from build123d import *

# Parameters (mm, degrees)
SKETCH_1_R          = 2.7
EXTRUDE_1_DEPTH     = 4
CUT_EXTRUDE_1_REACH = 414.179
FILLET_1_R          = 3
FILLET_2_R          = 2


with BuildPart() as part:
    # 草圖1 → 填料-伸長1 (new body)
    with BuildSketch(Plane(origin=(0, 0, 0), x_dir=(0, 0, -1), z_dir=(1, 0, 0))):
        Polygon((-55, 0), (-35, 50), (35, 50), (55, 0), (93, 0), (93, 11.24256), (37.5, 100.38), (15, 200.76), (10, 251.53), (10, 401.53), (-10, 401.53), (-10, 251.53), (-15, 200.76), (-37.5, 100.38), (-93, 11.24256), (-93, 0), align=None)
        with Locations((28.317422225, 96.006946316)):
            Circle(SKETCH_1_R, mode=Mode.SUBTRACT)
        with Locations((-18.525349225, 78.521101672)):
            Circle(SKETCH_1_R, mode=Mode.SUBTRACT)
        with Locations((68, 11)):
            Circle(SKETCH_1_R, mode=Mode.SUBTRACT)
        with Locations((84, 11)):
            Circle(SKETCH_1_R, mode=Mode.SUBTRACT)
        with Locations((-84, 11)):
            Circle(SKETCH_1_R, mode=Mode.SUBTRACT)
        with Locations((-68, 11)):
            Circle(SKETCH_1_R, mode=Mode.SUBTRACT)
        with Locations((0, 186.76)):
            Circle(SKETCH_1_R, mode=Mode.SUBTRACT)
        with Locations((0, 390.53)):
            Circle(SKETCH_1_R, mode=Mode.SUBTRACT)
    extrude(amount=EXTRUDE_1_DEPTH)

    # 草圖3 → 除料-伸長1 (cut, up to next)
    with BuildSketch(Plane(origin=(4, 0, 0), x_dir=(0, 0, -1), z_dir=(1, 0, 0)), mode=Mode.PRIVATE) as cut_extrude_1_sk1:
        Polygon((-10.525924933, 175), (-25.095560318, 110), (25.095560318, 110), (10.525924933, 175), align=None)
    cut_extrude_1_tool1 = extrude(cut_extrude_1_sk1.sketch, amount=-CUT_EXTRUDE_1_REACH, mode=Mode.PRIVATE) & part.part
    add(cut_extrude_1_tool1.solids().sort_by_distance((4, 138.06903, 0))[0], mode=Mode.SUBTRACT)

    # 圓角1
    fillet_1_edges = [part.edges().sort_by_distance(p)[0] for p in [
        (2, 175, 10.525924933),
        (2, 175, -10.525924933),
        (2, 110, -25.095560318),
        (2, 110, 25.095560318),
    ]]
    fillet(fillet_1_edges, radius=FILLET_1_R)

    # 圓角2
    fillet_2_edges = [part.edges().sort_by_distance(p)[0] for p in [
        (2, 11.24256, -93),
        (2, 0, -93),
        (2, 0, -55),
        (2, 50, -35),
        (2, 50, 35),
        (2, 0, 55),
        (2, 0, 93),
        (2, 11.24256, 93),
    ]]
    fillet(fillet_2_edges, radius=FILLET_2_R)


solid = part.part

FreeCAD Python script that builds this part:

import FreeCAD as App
import Part
import Sketcher
Q = App.Units.Quantity


def edges_at(feature, points):
    """Names of the edges that pass closest to the given points."""
    edges = feature.Shape.Edges
    near = lambda p: min(range(len(edges)), key=lambda i: edges[i].distToShape(Part.Vertex(*p))[0])
    return sorted({f"Edge{near(p) + 1}" for p in points})


def add_polygon(sketch, points):
    """Adds a closed chain of lines whose ends are joined by coincident constraints."""
    first, n = sketch.GeometryCount, len(points)
    for a, b in zip(points, points[1:] + points[:1]):
        sketch.addGeometry(Part.LineSegment(App.Vector(*a, 0), App.Vector(*b, 0)), False)
    for i in range(n):
        sketch.addConstraint(Sketcher.Constraint("Coincident", first + i, 2, first + (i + 1) % n, 1))

doc = App.newDocument("Part")
body = doc.addObject("PartDesign::Body", "Body")

sketch1 = doc.addObject("Sketcher::SketchObject", "Sketch")
body.addObject(sketch1)
sketch1.AttachmentSupport = (doc.YZ_Plane, [""])
sketch1.MapMode = "FlatFace"
add_polygon(sketch1, [(0, 55), (50, 35), (50, -35), (0, -55), (0, -93), (11.24256, -93), (100.38, -37.5), (200.76, -15), (251.53, -10), (401.53, -10), (401.53, 10), (251.53, 10), (200.76, 15), (100.38, 37.5), (11.24256, 93), (0, 93)])
sketch1.addGeometry(Part.Circle(App.Vector(11, 84, 0), App.Vector(0, 0, 1), 2.7), False)
sketch1.addGeometry(Part.Circle(App.Vector(11, 68, 0), App.Vector(0, 0, 1), 2.7), False)
sketch1.addGeometry(Part.Circle(App.Vector(78.521102, 18.525349, 0), App.Vector(0, 0, 1), 2.7), False)
sketch1.addGeometry(Part.Circle(App.Vector(96.006946, -28.317422, 0), App.Vector(0, 0, 1), 2.7), False)
sketch1.addGeometry(Part.Circle(App.Vector(11, -68, 0), App.Vector(0, 0, 1), 2.7), False)
sketch1.addGeometry(Part.Circle(App.Vector(11, -84, 0), App.Vector(0, 0, 1), 2.7), False)
sketch1.addGeometry(Part.Circle(App.Vector(186.76, 0, 0), App.Vector(0, 0, 1), 2.7), False)
sketch1.addGeometry(Part.Circle(App.Vector(390.53, 0, 0), App.Vector(0, 0, 1), 2.7), False)
sketch1.addConstraint(Sketcher.Constraint("Vertical", 1))
sketch1.addConstraint(Sketcher.Constraint("Vertical", 3))
sketch1.addConstraint(Sketcher.Constraint("Horizontal", 4))
sketch1.addConstraint(Sketcher.Constraint("Horizontal", 8))
sketch1.addConstraint(Sketcher.Constraint("Vertical", 9))
sketch1.addConstraint(Sketcher.Constraint("Horizontal", 10))
sketch1.addConstraint(Sketcher.Constraint("Horizontal", 14))
sketch1.addConstraint(Sketcher.Constraint("Vertical", 15))
sketch1.addConstraint(Sketcher.Constraint("Equal", 16, 17))
sketch1.addConstraint(Sketcher.Constraint("Equal", 17, 18))
sketch1.addConstraint(Sketcher.Constraint("Equal", 18, 19))
sketch1.addConstraint(Sketcher.Constraint("Equal", 19, 20))
sketch1.addConstraint(Sketcher.Constraint("Equal", 20, 21))
sketch1.addConstraint(Sketcher.Constraint("Equal", 21, 22))
sketch1.addConstraint(Sketcher.Constraint("Equal", 22, 23))
sketch1.addConstraint(Sketcher.Constraint("Symmetric", 3, 2, 14, 2, -1, 1))
sketch1.addConstraint(Sketcher.Constraint("Symmetric", 17, 3, 20, 3, -1))
sketch1.addConstraint(Sketcher.Constraint("Symmetric", 16, 3, 21, 3, -1))
sketch1.addConstraint(Sketcher.Constraint("Symmetric", 7, 2, 10, 2, -1))
sketch1.addConstraint(Sketcher.Constraint("Symmetric", 6, 2, 11, 2, -1))
sketch1.addConstraint(Sketcher.Constraint("Symmetric", 5, 2, 12, 2, -1))
sketch1.addConstraint(Sketcher.Constraint("Symmetric", 2, 2, 15, 2, -1))
sketch1.addConstraint(Sketcher.Constraint("PointOnObject", 22, 3, -1))
sketch1.addConstraint(Sketcher.Constraint("PointOnObject", 23, 3, -1))
sketch1.addConstraint(Sketcher.Constraint("Vertical", 16, 3, 17, 3))
sketch1.addConstraint(Sketcher.Constraint("Vertical", 4, 2, 13, 2))
sketch1.addConstraint(Sketcher.Constraint("Equal", 0, 2))
sketch1.addConstraint(Sketcher.Constraint("Diameter", 16, Q("5.4 mm")))
sketch1.addConstraint(Sketcher.Constraint("DistanceX", 8, 1, 8, 2, Q("150 mm")))
sketch1.addConstraint(Sketcher.Constraint("DistanceY", 1, 2, 1, 1, Q("70 mm")))
sketch1.addConstraint(Sketcher.Constraint("DistanceY", 3, 2, 3, 1, Q("38 mm")))
sketch1.addConstraint(Sketcher.Constraint("DistanceY", 9, 1, 9, 2, Q("20 mm")))
sketch1.addConstraint(Sketcher.Constraint("DistanceX", -1, 1, 16, 3, Q("11 mm")))
sketch1.addConstraint(Sketcher.Constraint("DistanceY", -1, 1, 16, 3, Q("84 mm")))
sketch1.addConstraint(Sketcher.Constraint("DistanceY", -1, 1, 17, 3, Q("68 mm")))
sketch1.addConstraint(Sketcher.Constraint("DistanceX", -1, 1, 0, 2, Q("50 mm")))
sketch1.addConstraint(Sketcher.Constraint("DistanceY", 2, 2, -1, 1, Q("55 mm")))
sketch1.addConstraint(Sketcher.Constraint("DistanceY", 6, 2, -1, 1, Q("15 mm")))
sketch1.addConstraint(Sketcher.Constraint("DistanceX", 22, 3, 6, 2, Q("14 mm")))
sketch1.addConstraint(Sketcher.Constraint("DistanceX", 7, 2, 23, 3, Q("139 mm")))
sketch1.addConstraint(Sketcher.Constraint("DistanceY", 5, 2, 12, 2, Q("75 mm")))
sketch1.addConstraint(Sketcher.Constraint("DistanceX", -1, 1, 22, 3, Q("186.76 mm")))
sketch1.addConstraint(Sketcher.Constraint("DistanceX", -1, 1, 23, 3, Q("390.53 mm")))
sketch1.addConstraint(Sketcher.Constraint("DistanceX", -1, 1, 5, 2, Q("100.38 mm")))
sketch1.addConstraint(Sketcher.Constraint("DistanceX", 4, 1, 4, 2, Q("11.24256 mm")))
sketch1.addConstraint(Sketcher.Constraint("DistanceX", -1, 1, 18, 3, Q("78.521102 mm")))
sketch1.addConstraint(Sketcher.Constraint("DistanceY", -1, 1, 18, 3, Q("18.525349 mm")))
sketch1.addConstraint(Sketcher.Constraint("DistanceY", 19, 3, 18, 3, Q("46.842771 mm")))
sketch1.addConstraint(Sketcher.Constraint("DistanceX", -1, 1, 19, 3, Q("96.006946 mm")))
pad1 = doc.addObject("PartDesign::Pad", "Pad")
body.addObject(pad1)
pad1.Profile = sketch1
pad1.Length = 4

sketch2 = doc.addObject("Sketcher::SketchObject", "Sketch001")
body.addObject(sketch2)
sketch2.AttachmentSupport = (doc.YZ_Plane, [""])
sketch2.MapMode = "FlatFace"
sketch2.AttachmentOffset = App.Placement(App.Vector(0, 0, 4), App.Rotation())
add_polygon(sketch2, [(175, 10.525925), (110, 25.09556), (110, -25.09556), (175, -10.525925)])
sketch2.addConstraint(Sketcher.Constraint("Vertical", 1))
sketch2.addConstraint(Sketcher.Constraint("Vertical", 3))
sketch2.addConstraint(Sketcher.Constraint("Equal", 0, 2))
sketch2.addConstraint(Sketcher.Constraint("DistanceX", -1, 1, 0, 2, Q("110 mm")))
sketch2.addConstraint(Sketcher.Constraint("DistanceX", -1, 1, 2, 2, Q("175 mm")))
sketch2.addConstraint(Sketcher.Constraint("DistanceY", 1, 2, 1, 1, Q("50.191121 mm")))
sketch2.addConstraint(Sketcher.Constraint("DistanceY", 3, 1, 3, 2, Q("21.05185 mm")))
sketch2.addConstraint(Sketcher.Constraint("DistanceY", -1, 1, 0, 2, Q("25.09556 mm")))
pocket1 = doc.addObject("PartDesign::Pocket", "Pocket")
body.addObject(pocket1)
pocket1.Profile = sketch2
pocket1.Type = "UpToFirst"
doc.recompute()

fillet = doc.addObject("PartDesign::Fillet", "Fillet")
body.addObject(fillet)
fillet.Base = (pocket1, edges_at(pocket1, [
    (2, 175, 10.526),
    (2, 175, -10.526),
    (2, 110, -25.096),
    (2, 110, 25.096),
]))
fillet.Radius = 3
doc.recompute()

fillet2 = doc.addObject("PartDesign::Fillet", "Fillet001")
body.addObject(fillet2)
fillet2.Base = (fillet, edges_at(fillet, [
    (2, 11.243, -93),
    (2, 0, -93),
    (2, 0, -55),
    (2, 50, -35),
    (2, 50, 35),
    (2, 0, 55),
    (2, 0, 93),
    (2, 11.243, 93),
]))
fillet2.Radius = 2

doc.recompute()
